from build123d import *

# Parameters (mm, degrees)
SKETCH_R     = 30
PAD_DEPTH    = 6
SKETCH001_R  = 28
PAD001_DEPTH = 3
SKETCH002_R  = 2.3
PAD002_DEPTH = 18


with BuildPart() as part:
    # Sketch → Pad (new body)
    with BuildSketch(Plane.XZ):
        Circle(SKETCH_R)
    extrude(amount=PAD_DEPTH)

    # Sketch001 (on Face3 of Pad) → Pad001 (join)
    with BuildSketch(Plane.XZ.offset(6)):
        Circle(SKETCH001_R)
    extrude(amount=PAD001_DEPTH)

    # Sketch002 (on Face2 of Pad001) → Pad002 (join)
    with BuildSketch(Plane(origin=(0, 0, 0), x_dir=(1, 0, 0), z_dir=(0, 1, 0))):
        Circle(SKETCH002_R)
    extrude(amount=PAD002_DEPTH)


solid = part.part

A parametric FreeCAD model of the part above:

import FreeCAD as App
import Part
import Sketcher

V = App.Vector

doc = App.newDocument("Part")
body = doc.addObject("PartDesign::Body", "Body")

# Sketch on XZ plane
sketch1 = body.newObject("Sketcher::SketchObject", "Sketch")
sketch1.AttachmentSupport = (doc.getObject("XZ_Plane"), [""])
sketch1.MapMode = "FlatFace"
sketch1.addGeometry(Part.Circle(V(0, 0, 0), V(0, 0, 1), 30), False)
sketch1.addConstraint([
    Sketcher.Constraint("Coincident", 0, 3, -1, 1),
    Sketcher.Constraint("Diameter", 0, 60.0),
])
pad1 = body.newObject("PartDesign::Pad", "Pad")
pad1.Profile = sketch1
pad1.Length = 6

# Sketch on XZ plane
sketch2 = body.newObject("Sketcher::SketchObject", "Sketch001")
sketch2.AttachmentSupport = (doc.getObject("XZ_Plane"), [""])
sketch2.MapMode = "FlatFace"
sketch2.AttachmentOffset = App.Placement(V(0, 0, 6), App.Rotation())
sketch2.addGeometry(Part.Circle(V(0, 0, 0), V(0, 0, 1), 28), False)
sketch2.addConstraint([
    Sketcher.Constraint("Coincident", 0, 3, -1, 1),
    Sketcher.Constraint("Diameter", 0, 56.0),
])
pad2 = body.newObject("PartDesign::Pad", "Pad001")
pad2.Profile = sketch2
pad2.Length = 3

# Sketch on XZ plane
sketch3 = body.newObject("Sketcher::SketchObject", "Sketch002")
sketch3.AttachmentSupport = (doc.getObject("XZ_Plane"), [""])
sketch3.MapMode = "FlatFace"
sketch3.addGeometry(Part.Circle(V(0, 0, 0), V(0, 0, 1), 2.3), False)
sketch3.addConstraint([
    Sketcher.Constraint("Coincident", 0, 3, -1, 1),
    Sketcher.Constraint("Diameter", 0, 4.6),
])
pad3 = body.newObject("PartDesign::Pad", "Pad002")
pad3.Profile = sketch3
pad3.Length = 18
pad3.Reversed = True

doc.recompute()
